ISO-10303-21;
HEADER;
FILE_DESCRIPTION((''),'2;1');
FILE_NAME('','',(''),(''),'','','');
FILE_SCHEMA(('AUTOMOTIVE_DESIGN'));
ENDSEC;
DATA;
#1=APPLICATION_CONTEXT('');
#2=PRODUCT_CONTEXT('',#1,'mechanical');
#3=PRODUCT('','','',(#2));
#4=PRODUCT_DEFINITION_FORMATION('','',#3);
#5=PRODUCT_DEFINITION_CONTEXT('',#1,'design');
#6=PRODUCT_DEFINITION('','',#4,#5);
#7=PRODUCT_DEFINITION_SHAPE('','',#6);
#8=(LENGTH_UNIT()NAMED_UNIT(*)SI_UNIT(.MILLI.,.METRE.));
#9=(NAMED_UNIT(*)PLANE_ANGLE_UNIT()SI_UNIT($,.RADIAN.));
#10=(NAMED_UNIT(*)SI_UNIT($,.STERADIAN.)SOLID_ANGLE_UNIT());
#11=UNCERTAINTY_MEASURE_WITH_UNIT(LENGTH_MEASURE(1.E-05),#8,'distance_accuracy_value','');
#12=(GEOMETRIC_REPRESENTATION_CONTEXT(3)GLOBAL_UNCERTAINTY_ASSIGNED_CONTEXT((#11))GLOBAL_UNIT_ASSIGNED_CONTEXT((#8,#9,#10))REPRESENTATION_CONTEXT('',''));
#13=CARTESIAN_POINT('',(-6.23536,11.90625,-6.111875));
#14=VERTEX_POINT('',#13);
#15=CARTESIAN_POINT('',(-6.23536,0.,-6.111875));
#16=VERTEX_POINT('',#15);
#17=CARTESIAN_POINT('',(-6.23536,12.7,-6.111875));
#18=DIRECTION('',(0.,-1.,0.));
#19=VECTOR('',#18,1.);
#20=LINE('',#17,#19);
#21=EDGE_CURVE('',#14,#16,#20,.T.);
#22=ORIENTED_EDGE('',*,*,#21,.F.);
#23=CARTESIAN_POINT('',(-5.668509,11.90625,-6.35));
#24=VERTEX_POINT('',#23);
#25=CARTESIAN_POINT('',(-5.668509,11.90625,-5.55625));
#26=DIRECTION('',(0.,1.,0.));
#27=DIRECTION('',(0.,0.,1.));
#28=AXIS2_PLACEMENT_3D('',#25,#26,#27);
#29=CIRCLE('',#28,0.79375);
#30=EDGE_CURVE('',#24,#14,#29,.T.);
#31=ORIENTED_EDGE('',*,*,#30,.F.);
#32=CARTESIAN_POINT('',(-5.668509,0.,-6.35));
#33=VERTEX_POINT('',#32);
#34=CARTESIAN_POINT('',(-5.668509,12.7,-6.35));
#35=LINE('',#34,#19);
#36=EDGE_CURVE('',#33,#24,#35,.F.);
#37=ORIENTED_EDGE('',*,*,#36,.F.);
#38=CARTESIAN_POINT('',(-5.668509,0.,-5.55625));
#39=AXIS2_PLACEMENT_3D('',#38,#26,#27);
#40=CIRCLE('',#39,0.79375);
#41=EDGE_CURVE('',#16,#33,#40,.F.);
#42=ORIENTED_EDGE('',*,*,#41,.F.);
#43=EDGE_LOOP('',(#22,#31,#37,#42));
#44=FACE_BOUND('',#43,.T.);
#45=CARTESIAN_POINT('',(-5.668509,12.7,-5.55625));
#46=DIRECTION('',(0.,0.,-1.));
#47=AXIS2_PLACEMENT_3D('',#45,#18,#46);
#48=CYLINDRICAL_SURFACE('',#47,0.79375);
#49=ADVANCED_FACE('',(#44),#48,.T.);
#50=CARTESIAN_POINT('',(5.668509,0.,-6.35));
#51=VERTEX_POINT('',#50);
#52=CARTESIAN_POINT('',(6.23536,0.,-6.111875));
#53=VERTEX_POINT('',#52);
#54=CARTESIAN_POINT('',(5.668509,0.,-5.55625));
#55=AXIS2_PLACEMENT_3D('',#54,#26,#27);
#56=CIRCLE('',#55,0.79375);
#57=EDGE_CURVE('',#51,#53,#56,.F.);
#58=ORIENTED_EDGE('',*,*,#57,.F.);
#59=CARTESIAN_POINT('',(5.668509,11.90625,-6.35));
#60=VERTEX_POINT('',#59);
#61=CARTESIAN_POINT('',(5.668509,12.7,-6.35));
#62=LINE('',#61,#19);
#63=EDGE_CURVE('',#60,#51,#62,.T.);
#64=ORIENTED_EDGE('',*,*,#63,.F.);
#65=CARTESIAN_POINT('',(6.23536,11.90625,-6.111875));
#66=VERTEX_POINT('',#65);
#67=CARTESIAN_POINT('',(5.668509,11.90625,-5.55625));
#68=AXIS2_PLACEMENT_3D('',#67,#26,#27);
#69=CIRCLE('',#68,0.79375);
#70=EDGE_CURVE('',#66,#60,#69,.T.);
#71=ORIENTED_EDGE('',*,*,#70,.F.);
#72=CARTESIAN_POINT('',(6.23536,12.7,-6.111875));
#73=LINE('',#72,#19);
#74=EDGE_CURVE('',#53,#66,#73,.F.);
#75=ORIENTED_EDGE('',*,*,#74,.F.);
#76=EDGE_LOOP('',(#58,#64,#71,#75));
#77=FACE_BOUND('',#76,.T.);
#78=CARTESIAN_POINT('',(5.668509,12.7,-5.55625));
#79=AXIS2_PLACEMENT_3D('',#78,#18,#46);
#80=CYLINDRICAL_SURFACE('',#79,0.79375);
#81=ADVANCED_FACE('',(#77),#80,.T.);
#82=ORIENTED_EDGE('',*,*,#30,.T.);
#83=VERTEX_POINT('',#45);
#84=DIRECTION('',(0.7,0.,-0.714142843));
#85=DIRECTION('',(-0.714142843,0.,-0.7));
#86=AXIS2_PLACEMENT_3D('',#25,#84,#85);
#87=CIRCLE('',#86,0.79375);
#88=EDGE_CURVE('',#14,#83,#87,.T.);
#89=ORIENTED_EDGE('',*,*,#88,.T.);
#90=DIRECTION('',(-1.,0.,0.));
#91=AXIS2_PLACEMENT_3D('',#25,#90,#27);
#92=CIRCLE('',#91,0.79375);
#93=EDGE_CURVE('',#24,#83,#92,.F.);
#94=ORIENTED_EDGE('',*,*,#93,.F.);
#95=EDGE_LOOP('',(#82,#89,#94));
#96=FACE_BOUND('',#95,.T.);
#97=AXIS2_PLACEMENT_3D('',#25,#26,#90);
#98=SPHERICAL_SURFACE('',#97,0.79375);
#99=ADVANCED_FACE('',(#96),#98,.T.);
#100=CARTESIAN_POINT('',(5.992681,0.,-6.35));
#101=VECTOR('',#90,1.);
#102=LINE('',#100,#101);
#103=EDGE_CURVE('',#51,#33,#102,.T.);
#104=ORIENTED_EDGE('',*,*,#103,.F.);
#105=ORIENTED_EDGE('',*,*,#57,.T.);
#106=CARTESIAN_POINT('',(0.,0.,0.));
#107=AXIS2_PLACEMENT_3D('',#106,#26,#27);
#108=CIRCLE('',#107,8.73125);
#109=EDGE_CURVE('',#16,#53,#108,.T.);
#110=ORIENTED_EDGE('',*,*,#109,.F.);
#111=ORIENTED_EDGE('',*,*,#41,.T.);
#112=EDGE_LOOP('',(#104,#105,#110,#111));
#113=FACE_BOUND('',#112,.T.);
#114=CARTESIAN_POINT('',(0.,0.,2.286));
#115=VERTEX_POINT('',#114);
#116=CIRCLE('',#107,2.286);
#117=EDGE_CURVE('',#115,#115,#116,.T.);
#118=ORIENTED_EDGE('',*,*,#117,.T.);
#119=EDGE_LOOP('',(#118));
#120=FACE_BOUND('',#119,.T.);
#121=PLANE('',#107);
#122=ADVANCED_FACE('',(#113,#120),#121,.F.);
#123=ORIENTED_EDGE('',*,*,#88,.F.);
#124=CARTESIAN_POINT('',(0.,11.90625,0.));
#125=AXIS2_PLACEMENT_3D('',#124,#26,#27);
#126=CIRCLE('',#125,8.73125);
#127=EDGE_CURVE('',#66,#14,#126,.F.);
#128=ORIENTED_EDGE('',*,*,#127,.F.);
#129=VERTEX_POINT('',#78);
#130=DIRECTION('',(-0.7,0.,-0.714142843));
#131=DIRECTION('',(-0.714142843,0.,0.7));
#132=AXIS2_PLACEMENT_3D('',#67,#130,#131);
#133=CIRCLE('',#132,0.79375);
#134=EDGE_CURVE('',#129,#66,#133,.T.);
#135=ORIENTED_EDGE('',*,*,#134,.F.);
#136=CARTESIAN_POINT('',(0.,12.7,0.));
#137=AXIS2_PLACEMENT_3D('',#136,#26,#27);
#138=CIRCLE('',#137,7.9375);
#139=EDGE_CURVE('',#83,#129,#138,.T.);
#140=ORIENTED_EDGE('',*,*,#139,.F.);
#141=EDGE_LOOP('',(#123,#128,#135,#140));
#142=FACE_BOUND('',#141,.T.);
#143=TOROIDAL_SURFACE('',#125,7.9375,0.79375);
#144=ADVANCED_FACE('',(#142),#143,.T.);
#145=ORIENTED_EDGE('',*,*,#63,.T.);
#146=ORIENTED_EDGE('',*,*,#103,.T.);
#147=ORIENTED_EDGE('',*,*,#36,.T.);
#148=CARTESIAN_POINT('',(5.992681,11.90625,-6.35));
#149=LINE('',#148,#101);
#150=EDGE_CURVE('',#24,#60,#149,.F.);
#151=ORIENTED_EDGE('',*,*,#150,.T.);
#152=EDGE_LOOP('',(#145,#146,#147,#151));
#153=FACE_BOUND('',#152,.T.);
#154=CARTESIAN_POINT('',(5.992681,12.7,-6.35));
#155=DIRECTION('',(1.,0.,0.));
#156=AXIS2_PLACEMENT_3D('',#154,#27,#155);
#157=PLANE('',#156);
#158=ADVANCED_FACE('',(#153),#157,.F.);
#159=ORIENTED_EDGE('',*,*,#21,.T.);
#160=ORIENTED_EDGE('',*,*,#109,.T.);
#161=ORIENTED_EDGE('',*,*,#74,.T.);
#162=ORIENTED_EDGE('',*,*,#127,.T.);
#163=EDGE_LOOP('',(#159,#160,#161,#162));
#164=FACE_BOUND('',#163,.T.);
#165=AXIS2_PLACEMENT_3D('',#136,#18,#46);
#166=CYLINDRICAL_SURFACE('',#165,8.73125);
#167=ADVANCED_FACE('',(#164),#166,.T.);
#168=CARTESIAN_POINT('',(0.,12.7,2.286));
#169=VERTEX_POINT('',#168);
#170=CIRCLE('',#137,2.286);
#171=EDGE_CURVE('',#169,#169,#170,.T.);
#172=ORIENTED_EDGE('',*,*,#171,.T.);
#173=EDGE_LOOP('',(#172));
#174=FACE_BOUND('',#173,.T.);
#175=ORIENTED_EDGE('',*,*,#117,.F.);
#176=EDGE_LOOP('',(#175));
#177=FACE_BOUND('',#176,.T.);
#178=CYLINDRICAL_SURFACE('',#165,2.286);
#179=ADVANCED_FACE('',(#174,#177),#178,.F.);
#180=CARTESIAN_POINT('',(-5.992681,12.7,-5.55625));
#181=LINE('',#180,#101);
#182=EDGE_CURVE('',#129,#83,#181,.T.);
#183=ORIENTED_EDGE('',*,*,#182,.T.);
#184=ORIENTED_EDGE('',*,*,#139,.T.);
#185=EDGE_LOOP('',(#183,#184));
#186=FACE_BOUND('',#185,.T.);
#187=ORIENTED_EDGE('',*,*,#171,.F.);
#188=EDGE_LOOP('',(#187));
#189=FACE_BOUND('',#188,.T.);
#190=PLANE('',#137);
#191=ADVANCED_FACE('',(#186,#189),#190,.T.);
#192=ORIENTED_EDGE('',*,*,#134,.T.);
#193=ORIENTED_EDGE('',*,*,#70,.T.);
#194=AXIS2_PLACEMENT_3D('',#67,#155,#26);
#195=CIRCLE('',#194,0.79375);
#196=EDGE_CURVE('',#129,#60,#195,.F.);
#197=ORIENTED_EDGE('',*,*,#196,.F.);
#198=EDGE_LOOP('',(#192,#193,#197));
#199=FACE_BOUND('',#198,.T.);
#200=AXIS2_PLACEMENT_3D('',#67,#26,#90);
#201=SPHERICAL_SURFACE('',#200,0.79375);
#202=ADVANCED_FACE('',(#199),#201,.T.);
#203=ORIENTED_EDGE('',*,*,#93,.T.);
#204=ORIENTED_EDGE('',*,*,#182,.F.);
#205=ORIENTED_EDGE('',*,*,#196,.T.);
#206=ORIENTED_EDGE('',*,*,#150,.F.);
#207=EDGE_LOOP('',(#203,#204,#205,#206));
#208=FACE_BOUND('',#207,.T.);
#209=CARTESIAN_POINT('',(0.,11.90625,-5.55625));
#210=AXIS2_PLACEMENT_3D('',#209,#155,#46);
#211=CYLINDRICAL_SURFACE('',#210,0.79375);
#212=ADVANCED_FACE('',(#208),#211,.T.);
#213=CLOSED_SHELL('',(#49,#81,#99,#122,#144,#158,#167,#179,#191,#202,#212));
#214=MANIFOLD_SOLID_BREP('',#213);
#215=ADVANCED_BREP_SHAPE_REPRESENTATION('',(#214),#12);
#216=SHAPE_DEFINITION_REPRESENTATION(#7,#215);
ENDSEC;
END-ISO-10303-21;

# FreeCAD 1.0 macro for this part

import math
import FreeCAD as App
import Part
import Sketcher
Q = App.Units.Quantity


def edges_at(feature, points):
    """Names of the edges that pass closest to the given points."""
    edges = feature.Shape.Edges
    near = lambda p: min(range(len(edges)), key=lambda i: edges[i].distToShape(Part.Vertex(*p))[0])
    return sorted({f"Edge{near(p) + 1}" for p in points})

doc = App.newDocument("Part")
body = doc.addObject("PartDesign::Body", "Body")

# Sketch on XZ plane
sketch1 = body.newObject("Sketcher::SketchObject", "Sketch")
sketch1.AttachmentSupport = (doc.getObject("XZ_Plane"), [""])
sketch1.MapMode = "FlatFace"
sketch1.addGeometry([
    Part.LineSegment(App.Vector(6, -6.3, 0), App.Vector(-6, -6.3, 0)),
    Part.ArcOfCircle(Part.Circle(App.Vector(0, 0, 0), App.Vector(0, 0, 1), 8.7), math.radians(-47), math.radians(227)),
    Part.Circle(App.Vector(0, 0, 0), App.Vector(0, 0, 1), 2.3),
], False)
sketch1.addConstraint([
    Sketcher.Constraint("Coincident", 0, 1, 1, 1),
    Sketcher.Constraint("Coincident", 1, 2, 0, 2),
    Sketcher.Constraint("Horizontal", 0),
    Sketcher.Constraint("Coincident", 1, 3, -1, 1),
    Sketcher.Constraint("Coincident", 2, 3, -1, 1),
    Sketcher.Constraint("Diameter", 2, Q("0.18 in")),
    Sketcher.Constraint("Radius", 1, Q("0.34375 in")),
    Sketcher.Constraint("DistanceY", 0, 1, -1, 1, Q("0.25 in")),
])
pad1 = body.newObject("PartDesign::Pad", "Pad")
pad1.Profile = sketch1
pad1.Length = Q("0.5 in")
pad1.Reversed = True
doc.recompute()

fillet = body.newObject("PartDesign::Fillet", "Fillet")
fillet.Base = (pad1, edges_at(pad1, [
    (-5.993, 6.35, -6.35),
    (5.993, 6.35, -6.35),
    (0, 12.7, 8.731),
    (0, 12.7, -6.35),
]))
fillet.Radius = Q("0.03125 in")

doc.recompute()
